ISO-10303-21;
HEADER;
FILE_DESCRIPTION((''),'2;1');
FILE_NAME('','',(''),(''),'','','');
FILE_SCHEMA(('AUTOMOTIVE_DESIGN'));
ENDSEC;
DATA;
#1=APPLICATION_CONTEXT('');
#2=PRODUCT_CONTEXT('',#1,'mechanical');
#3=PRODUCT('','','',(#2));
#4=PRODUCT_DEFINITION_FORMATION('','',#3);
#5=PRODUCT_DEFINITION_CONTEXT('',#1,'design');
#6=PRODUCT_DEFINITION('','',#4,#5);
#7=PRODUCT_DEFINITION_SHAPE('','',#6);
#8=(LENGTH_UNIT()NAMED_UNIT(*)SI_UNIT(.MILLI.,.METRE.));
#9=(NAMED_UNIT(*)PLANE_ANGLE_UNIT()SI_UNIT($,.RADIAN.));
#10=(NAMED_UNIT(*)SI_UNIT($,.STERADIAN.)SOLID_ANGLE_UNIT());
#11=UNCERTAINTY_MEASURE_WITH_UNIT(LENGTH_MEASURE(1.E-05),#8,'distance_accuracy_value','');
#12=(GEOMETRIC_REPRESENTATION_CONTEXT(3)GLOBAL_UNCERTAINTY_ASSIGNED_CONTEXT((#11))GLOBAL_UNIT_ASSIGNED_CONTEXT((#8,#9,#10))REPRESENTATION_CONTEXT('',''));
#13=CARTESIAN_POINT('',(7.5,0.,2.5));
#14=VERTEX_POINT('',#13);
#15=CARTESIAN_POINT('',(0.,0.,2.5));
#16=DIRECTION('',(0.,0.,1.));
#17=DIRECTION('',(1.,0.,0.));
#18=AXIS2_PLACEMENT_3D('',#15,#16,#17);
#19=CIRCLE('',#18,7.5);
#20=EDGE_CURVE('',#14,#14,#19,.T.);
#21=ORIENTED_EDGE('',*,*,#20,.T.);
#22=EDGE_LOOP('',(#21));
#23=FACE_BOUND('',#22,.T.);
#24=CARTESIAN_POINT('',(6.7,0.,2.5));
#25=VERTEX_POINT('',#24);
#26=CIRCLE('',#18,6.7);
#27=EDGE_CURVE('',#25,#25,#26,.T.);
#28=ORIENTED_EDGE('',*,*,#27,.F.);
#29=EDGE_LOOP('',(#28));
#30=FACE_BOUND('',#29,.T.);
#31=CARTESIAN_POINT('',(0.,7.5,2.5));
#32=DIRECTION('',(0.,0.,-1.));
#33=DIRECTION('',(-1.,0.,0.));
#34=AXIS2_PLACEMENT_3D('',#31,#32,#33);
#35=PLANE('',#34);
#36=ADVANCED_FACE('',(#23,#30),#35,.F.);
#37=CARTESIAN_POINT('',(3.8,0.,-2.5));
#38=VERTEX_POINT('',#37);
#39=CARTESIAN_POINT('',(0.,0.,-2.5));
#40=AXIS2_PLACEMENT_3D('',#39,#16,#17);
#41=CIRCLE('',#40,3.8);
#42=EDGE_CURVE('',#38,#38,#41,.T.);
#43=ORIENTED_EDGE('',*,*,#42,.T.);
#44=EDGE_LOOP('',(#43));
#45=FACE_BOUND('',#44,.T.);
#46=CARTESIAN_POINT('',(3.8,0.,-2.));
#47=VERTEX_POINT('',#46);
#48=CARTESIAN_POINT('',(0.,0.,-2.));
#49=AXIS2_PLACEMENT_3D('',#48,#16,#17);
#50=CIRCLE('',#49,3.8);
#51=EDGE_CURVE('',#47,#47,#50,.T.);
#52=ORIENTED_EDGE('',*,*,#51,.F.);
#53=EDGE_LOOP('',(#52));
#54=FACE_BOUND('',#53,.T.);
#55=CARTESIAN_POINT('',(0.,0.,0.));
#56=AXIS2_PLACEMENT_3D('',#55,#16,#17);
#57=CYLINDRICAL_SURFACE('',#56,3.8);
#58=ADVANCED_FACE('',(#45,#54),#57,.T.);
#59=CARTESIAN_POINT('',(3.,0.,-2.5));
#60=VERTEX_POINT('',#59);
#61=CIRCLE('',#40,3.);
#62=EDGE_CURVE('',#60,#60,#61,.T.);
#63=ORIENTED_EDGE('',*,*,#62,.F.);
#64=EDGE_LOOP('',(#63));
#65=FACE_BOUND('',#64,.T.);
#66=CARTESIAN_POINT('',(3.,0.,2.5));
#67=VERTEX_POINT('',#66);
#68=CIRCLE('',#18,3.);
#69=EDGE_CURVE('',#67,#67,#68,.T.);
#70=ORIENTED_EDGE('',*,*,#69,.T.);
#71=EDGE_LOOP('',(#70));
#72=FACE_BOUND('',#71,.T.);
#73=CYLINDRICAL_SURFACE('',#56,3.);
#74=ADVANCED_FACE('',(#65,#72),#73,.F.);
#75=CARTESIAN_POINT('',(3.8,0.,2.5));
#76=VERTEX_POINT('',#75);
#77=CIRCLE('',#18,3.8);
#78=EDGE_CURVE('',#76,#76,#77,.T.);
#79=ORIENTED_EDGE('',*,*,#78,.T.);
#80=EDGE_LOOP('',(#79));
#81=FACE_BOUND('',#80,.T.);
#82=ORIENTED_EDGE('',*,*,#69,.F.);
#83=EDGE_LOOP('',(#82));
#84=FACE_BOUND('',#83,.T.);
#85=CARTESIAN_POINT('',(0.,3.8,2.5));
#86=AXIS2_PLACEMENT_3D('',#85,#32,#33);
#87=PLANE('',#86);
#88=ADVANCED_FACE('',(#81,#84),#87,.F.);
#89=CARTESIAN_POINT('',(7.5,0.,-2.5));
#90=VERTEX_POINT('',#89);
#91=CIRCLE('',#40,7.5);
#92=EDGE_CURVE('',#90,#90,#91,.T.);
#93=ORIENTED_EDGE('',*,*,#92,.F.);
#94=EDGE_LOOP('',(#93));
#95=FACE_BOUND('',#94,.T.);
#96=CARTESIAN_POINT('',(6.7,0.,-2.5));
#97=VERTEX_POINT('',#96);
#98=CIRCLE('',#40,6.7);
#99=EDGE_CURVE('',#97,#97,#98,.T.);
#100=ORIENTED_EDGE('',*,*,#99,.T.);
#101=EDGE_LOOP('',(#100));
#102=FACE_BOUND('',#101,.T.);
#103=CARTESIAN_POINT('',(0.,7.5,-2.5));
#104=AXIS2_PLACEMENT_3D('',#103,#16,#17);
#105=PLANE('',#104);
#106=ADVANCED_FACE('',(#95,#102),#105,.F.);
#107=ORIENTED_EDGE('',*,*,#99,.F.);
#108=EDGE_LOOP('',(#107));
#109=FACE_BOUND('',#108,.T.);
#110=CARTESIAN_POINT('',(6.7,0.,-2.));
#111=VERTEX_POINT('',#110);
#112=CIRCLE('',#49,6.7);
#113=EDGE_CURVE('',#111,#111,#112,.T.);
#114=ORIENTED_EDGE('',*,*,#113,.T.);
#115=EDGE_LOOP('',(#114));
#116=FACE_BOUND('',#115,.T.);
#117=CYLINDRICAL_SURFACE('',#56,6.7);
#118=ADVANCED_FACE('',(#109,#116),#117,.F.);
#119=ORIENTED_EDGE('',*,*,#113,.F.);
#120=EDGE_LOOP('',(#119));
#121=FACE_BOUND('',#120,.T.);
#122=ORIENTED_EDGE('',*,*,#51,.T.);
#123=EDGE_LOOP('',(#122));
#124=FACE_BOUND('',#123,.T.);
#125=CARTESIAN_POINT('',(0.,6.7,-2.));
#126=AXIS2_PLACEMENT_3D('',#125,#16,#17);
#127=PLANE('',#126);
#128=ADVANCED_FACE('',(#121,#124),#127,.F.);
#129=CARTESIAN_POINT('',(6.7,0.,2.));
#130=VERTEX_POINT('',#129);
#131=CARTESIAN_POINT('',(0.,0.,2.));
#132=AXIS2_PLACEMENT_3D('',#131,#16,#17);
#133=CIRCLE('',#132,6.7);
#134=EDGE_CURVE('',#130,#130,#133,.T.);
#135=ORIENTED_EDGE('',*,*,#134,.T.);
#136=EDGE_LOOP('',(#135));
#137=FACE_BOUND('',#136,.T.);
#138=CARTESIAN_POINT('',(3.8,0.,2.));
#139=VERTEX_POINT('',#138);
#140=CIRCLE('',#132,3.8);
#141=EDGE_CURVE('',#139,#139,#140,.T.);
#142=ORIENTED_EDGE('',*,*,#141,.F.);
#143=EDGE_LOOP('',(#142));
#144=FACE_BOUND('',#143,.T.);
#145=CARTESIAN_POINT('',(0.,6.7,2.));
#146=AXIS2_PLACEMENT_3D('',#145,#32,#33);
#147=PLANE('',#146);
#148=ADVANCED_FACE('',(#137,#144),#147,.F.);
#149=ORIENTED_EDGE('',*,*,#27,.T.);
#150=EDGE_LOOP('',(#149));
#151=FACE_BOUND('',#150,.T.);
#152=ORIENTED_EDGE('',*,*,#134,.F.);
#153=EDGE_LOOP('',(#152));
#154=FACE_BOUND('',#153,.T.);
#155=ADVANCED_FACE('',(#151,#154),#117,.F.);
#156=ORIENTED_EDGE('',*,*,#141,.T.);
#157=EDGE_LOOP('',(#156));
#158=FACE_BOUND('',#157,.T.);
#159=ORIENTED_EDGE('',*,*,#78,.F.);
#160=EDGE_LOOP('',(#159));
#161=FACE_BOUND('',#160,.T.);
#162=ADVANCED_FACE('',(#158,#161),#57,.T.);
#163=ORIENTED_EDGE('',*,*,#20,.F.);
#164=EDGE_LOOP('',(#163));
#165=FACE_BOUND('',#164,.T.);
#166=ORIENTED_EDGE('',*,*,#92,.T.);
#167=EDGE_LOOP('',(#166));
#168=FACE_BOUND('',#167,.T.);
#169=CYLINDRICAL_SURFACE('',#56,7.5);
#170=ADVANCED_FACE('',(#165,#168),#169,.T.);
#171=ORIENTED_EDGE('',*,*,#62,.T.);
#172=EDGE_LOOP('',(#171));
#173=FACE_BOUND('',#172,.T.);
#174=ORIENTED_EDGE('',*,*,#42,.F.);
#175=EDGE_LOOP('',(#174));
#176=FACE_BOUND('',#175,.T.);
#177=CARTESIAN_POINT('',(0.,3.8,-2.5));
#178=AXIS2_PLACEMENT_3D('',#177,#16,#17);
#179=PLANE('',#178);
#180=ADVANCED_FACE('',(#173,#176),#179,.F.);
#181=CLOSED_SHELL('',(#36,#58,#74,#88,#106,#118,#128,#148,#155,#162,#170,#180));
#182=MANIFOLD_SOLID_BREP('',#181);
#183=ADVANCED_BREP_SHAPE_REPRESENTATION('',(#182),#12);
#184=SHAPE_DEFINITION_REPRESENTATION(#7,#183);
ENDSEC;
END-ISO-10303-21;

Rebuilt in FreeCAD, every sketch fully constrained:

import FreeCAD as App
import Part
import Sketcher
Q = App.Units.Quantity


def add_polygon(sketch, points):
    """Adds a closed chain of lines whose ends are joined by coincident constraints."""
    first, n = sketch.GeometryCount, len(points)
    for a, b in zip(points, points[1:] + points[:1]):
        sketch.addGeometry(Part.LineSegment(App.Vector(*a, 0), App.Vector(*b, 0)), False)
    for i in range(n):
        sketch.addConstraint(Sketcher.Constraint("Coincident", first + i, 2, first + (i + 1) % n, 1))

doc = App.newDocument("Part")
body = doc.addObject("PartDesign::Body", "Body")

# Sketch on YZ plane
sketch1 = doc.addObject("Sketcher::SketchObject", "Sketch")
body.addObject(sketch1)
sketch1.AttachmentSupport = (doc.YZ_Plane, [""])
sketch1.MapMode = "FlatFace"
add_polygon(sketch1, [(7.5, -2.5), (7.5, 2.5), (6.7, 2.5), (6.7, 2), (3.8, 2), (3.8, 2.5), (3, 2.5), (3, -2.5), (3.8, -2.5), (3.8, -2), (6.7, -2), (6.7, -2.5)])  # lines 0-11
sketch1.addConstraint([
    Sketcher.Constraint("Vertical", 0),
    Sketcher.Constraint("Horizontal", 1),
    Sketcher.Constraint("Vertical", 2),
    Sketcher.Constraint("Horizontal", 3),
    Sketcher.Constraint("Vertical", 4),
    Sketcher.Constraint("Horizontal", 5),
    Sketcher.Constraint("Vertical", 6),
    Sketcher.Constraint("Horizontal", 7),
    Sketcher.Constraint("Vertical", 8),
    Sketcher.Constraint("Horizontal", 9),
    Sketcher.Constraint("Vertical", 10),
    Sketcher.Constraint("Horizontal", 11),
    Sketcher.Constraint("Symmetric", 4, 2, 7, 2, -1),
    Sketcher.Constraint("Symmetric", 2, 2, 9, 2, -1),
    Sketcher.Constraint("Horizontal", 1, 2, 4, 2),
    Sketcher.Constraint("Horizontal", 7, 2, 10, 2),
    Sketcher.Constraint("Equal", 1, 5),
    Sketcher.Constraint("DistanceY", 0, 1, 0, 2, Q("5 mm")),
    Sketcher.Constraint("DistanceX", 1, 2, 1, 1, Q("0.8 mm")),
    Sketcher.Constraint("DistanceX", 3, 2, 3, 1, Q("2.9 mm")),
    Sketcher.Constraint("DistanceY", 2, 2, 2, 1, Q("0.5 mm")),
    Sketcher.Constraint("DistanceX", -1, 1, 5, 2, Q("3 mm")),
])
revolution = doc.addObject("PartDesign::Revolution", "Revolution")
body.addObject(revolution)
revolution.Profile = sketch1
revolution.ReferenceAxis = (sketch1, ["V_Axis"])
revolution.Angle = 360

doc.recompute()
